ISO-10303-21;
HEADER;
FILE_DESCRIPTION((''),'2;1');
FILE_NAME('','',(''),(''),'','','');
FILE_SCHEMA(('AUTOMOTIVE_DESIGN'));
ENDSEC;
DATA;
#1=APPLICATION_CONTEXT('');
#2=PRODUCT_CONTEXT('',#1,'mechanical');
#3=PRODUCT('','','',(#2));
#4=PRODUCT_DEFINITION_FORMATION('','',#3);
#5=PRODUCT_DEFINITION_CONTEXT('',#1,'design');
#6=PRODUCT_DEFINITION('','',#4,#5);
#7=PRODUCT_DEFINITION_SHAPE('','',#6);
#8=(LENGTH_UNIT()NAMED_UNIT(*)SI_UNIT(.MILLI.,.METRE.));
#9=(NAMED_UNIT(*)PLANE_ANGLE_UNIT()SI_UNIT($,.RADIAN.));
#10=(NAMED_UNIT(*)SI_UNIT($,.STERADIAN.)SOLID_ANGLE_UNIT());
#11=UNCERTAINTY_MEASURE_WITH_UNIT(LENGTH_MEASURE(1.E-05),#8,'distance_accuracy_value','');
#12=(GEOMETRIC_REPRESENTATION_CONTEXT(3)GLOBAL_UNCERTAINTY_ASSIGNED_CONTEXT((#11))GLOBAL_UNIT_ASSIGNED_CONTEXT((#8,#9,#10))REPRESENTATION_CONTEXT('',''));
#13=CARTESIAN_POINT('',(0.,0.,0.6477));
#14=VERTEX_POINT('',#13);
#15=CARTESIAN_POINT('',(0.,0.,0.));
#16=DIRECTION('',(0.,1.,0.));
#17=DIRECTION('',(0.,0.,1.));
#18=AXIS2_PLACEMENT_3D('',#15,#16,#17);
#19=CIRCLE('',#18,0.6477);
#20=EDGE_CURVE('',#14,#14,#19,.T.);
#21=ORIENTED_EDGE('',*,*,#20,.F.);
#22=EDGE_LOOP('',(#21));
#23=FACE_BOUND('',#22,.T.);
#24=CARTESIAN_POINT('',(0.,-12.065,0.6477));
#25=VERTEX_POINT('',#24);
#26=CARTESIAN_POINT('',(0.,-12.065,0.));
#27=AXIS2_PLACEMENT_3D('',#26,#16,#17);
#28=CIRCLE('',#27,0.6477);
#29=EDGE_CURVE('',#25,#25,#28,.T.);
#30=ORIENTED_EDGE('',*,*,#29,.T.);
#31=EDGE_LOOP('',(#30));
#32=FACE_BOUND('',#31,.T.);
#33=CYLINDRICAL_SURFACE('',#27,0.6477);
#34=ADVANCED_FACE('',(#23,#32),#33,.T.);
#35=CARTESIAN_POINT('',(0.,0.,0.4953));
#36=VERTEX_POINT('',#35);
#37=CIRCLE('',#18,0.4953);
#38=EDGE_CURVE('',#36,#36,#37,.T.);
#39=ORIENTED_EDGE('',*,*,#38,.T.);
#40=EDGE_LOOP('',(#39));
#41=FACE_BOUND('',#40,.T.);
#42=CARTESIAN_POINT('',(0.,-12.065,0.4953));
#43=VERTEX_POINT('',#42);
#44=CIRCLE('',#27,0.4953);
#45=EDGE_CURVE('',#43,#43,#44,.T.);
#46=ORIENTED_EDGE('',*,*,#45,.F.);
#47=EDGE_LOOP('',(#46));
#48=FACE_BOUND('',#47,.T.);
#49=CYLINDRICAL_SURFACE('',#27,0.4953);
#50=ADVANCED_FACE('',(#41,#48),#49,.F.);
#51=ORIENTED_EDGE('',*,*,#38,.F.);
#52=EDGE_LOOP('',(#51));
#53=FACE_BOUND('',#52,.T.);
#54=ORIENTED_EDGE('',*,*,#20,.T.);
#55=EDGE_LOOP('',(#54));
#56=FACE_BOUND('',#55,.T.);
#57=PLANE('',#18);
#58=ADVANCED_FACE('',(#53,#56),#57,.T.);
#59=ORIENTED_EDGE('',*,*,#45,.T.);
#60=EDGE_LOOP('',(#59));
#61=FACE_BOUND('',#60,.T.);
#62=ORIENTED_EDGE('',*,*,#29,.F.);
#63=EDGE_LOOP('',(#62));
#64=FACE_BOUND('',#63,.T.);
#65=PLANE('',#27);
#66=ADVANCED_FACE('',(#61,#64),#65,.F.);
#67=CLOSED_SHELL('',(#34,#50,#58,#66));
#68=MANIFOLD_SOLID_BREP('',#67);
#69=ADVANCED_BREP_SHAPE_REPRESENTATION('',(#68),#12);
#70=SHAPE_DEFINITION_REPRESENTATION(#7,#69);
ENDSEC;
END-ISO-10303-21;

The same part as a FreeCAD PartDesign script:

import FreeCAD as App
import Part
import Sketcher
from FreeCAD import Vector
Q = App.Units.Quantity

doc = App.newDocument("Part")
body = doc.addObject("PartDesign::Body", "Body")

# Sketch on XZ plane
sketch1 = body.newObject("Sketcher::SketchObject", "Sketch")
sketch1.AttachmentSupport = (doc.getObject("XZ_Plane"), [""])
sketch1.MapMode = "FlatFace"
sketch1.addGeometry(Part.Circle(Vector(0, 0, 0), Vector(0, 0, 1), 0.65), False)
sketch1.addGeometry(Part.Circle(Vector(0, 0, 0), Vector(0, 0, 1), 0.5), False)
sketch1.addConstraint(Sketcher.Constraint("Coincident", 0, 3, -1, 1))
sketch1.addConstraint(Sketcher.Constraint("Coincident", 1, 3, -1, 1))
sketch1.addConstraint(Sketcher.Constraint("Diameter", 0, Q("0.051 in")))
sketch1.addConstraint(Sketcher.Constraint("Diameter", 1, Q("0.039 in")))
pad1 = body.newObject("PartDesign::Pad", "Pad")
pad1.Profile = sketch1
pad1.Length = Q("0.475 in")

doc.recompute()
